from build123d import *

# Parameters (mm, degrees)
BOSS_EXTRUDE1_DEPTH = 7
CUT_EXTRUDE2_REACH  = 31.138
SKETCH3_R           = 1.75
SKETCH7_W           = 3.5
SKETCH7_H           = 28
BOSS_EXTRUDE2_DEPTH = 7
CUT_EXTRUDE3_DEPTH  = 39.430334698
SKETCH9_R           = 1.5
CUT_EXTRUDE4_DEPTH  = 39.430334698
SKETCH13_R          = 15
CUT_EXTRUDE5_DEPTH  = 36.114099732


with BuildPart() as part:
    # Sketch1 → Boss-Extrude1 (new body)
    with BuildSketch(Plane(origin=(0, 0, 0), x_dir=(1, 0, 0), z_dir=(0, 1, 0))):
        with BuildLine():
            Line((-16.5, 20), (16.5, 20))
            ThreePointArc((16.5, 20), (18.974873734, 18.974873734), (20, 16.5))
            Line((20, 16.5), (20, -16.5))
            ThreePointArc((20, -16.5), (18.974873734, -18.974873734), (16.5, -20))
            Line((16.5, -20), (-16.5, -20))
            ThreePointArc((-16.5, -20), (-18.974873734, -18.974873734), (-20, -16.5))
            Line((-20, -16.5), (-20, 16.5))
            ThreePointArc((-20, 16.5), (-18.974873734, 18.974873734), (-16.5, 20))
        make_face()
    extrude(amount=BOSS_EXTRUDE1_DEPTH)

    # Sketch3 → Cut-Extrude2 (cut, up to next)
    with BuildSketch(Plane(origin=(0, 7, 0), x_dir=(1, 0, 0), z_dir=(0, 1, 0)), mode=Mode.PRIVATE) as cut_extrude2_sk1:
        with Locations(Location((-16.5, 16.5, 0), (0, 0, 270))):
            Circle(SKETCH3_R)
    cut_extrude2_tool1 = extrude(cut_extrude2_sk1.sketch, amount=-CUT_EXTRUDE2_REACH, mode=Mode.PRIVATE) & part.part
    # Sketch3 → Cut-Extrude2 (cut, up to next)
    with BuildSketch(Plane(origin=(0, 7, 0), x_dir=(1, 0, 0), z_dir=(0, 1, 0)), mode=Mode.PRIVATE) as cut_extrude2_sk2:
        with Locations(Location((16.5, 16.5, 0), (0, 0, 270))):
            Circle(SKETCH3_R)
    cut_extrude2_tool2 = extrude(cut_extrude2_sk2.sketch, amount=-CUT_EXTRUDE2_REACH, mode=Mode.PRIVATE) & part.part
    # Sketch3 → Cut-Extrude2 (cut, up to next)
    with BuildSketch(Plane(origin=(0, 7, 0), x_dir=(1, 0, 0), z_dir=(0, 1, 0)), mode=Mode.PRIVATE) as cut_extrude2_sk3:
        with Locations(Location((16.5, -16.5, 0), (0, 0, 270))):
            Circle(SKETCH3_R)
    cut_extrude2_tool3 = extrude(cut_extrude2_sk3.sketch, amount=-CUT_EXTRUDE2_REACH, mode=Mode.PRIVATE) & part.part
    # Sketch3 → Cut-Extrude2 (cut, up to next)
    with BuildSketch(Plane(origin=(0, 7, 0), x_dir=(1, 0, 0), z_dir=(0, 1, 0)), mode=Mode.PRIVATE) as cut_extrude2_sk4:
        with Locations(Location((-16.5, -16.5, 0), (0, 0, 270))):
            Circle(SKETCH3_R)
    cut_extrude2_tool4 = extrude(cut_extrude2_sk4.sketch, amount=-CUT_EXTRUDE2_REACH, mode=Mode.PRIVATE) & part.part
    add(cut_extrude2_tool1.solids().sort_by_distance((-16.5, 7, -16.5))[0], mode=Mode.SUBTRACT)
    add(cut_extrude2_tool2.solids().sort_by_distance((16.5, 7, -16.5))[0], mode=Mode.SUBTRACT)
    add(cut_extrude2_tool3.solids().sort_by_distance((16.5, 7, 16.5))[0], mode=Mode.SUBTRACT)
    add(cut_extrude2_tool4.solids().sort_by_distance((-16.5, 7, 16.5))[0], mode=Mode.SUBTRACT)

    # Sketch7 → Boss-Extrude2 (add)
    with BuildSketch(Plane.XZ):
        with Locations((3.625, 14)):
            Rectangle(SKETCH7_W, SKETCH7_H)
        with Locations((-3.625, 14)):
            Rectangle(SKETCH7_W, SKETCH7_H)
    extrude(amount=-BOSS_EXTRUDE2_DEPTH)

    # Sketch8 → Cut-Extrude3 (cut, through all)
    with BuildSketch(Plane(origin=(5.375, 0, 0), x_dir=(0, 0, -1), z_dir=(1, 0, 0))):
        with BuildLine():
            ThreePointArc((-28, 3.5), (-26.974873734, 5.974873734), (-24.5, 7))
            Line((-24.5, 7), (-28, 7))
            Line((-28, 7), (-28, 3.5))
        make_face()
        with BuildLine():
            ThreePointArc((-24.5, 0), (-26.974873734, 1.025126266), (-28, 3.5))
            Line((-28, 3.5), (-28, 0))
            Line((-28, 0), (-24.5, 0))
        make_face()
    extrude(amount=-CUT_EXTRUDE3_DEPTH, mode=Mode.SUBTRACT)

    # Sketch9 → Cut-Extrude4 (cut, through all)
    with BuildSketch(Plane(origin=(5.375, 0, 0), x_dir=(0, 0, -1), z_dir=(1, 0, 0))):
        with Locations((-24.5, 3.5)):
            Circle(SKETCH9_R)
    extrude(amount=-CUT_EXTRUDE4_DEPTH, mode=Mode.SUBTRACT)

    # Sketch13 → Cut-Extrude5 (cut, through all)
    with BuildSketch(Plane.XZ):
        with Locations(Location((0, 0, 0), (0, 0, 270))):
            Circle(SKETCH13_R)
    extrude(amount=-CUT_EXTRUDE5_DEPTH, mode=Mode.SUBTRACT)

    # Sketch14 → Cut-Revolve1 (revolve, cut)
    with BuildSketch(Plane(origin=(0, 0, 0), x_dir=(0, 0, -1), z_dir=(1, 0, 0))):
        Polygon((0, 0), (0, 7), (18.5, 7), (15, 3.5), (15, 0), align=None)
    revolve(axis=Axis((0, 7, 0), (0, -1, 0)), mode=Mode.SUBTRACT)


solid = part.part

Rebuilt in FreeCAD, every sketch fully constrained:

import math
import FreeCAD as App
import Part
import Sketcher
Q = App.Units.Quantity


def add_polygon(sketch, points):
    """Adds a closed chain of lines whose ends are joined by coincident constraints."""
    first, n = sketch.GeometryCount, len(points)
    for a, b in zip(points, points[1:] + points[:1]):
        sketch.addGeometry(Part.LineSegment(App.Vector(*a, 0), App.Vector(*b, 0)), False)
    for i in range(n):
        sketch.addConstraint(Sketcher.Constraint("Coincident", first + i, 2, first + (i + 1) % n, 1))

doc = App.newDocument("Part")
body = doc.addObject("PartDesign::Body", "Body")

sketch1 = body.newObject("Sketcher::SketchObject", "Sketch")
sketch1.AttachmentSupport = (doc.getObject("XZ_Plane"), [""])
sketch1.MapMode = "FlatFace"
sketch1.addGeometry([
    Part.LineSegment(App.Vector(16.5, -20, 0), App.Vector(-16.5, -20, 0)),
    Part.ArcOfCircle(Part.Circle(App.Vector(-16.5, -16.5, 0), App.Vector(0, 0, 1), 3.5), math.radians(-180), math.radians(-90)),
    Part.LineSegment(App.Vector(-20, -16.5, 0), App.Vector(-20, 16.5, 0)),
    Part.ArcOfCircle(Part.Circle(App.Vector(-16.5, 16.5, 0), App.Vector(0, 0, 1), 3.5), math.radians(90), math.radians(180)),
    Part.LineSegment(App.Vector(-16.5, 20, 0), App.Vector(16.5, 20, 0)),
    Part.ArcOfCircle(Part.Circle(App.Vector(16.5, 16.5, 0), App.Vector(0, 0, 1), 3.5), math.radians(0), math.radians(90)),
    Part.LineSegment(App.Vector(20, 16.5, 0), App.Vector(20, -16.5, 0)),
    Part.ArcOfCircle(Part.Circle(App.Vector(16.5, -16.5, 0), App.Vector(0, 0, 1), 3.5), math.radians(-90), math.radians(0)),
], False)
sketch1.addConstraint([
    Sketcher.Constraint("Tangent", 0, 2, 1, 2),
    Sketcher.Constraint("Tangent", 1, 1, 2, 1),
    Sketcher.Constraint("Tangent", 2, 2, 3, 2),
    Sketcher.Constraint("Tangent", 3, 1, 4, 1),
    Sketcher.Constraint("Tangent", 4, 2, 5, 2),
    Sketcher.Constraint("Tangent", 5, 1, 6, 1),
    Sketcher.Constraint("Tangent", 6, 2, 7, 2),
    Sketcher.Constraint("Tangent", 7, 1, 0, 1),
    Sketcher.Constraint("Horizontal", 0),
    Sketcher.Constraint("Vertical", 2),
    Sketcher.Constraint("Horizontal", 4),
    Sketcher.Constraint("Vertical", 6),
    Sketcher.Constraint("Equal", 1, 3),
    Sketcher.Constraint("Equal", 3, 5),
    Sketcher.Constraint("Equal", 5, 7),
    Sketcher.Constraint("Symmetric", 1, 3, 5, 3, -1, 1),
    Sketcher.Constraint("Equal", 4, 2),
    Sketcher.Constraint("Radius", 1, Q("3.5 mm")),
    Sketcher.Constraint("DistanceX", 0, 2, 0, 1, Q("33 mm")),
])
pad1 = body.newObject("PartDesign::Pad", "Pad")
pad1.Profile = sketch1
pad1.Length = 7
pad1.Reversed = True

sketch2 = body.newObject("Sketcher::SketchObject", "Sketch001")
sketch2.AttachmentSupport = (doc.getObject("XZ_Plane"), [""])
sketch2.MapMode = "FlatFace"
sketch2.AttachmentOffset = App.Placement(App.Vector(0, 0, -7), App.Rotation())
sketch2.addGeometry(Part.Circle(App.Vector(-16.5, -16.5, 0), App.Vector(0, 0, 1), 1.8), False)
sketch2.addConstraint([
    Sketcher.Constraint("Diameter", 0, Q("3.5 mm")),
    Sketcher.Constraint("DistanceX", 0, 3, -1, 1, Q("16.5 mm")),
    Sketcher.Constraint("DistanceY", 0, 3, -1, 1, Q("16.5 mm")),
])
pocket1 = body.newObject("PartDesign::Pocket", "Pocket")
pocket1.Profile = sketch2
pocket1.Type = "UpToFirst"
pocket1.Reversed = True

sketch3 = body.newObject("Sketcher::SketchObject", "Sketch002")
sketch3.AttachmentSupport = (doc.getObject("XZ_Plane"), [""])
sketch3.MapMode = "FlatFace"
sketch3.AttachmentOffset = App.Placement(App.Vector(0, 0, -7), App.Rotation())
sketch3.addGeometry(Part.Circle(App.Vector(16.5, -16.5, 0), App.Vector(0, 0, 1), 1.8), False)
sketch3.addConstraint([
    Sketcher.Constraint("Diameter", 0, Q("3.5 mm")),
    Sketcher.Constraint("DistanceX", -1, 1, 0, 3, Q("16.5 mm")),
    Sketcher.Constraint("DistanceY", 0, 3, -1, 1, Q("16.5 mm")),
])
pocket2 = body.newObject("PartDesign::Pocket", "Pocket001")
pocket2.Profile = sketch3
pocket2.Type = "UpToFirst"
pocket2.Reversed = True

sketch4 = body.newObject("Sketcher::SketchObject", "Sketch003")
sketch4.AttachmentSupport = (doc.getObject("XZ_Plane"), [""])
sketch4.MapMode = "FlatFace"
sketch4.AttachmentOffset = App.Placement(App.Vector(0, 0, -7), App.Rotation())
sketch4.addGeometry(Part.Circle(App.Vector(16.5, 16.5, 0), App.Vector(0, 0, 1), 1.8), False)
sketch4.addConstraint([
    Sketcher.Constraint("Diameter", 0, Q("3.5 mm")),
    Sketcher.Constraint("DistanceX", -1, 1, 0, 3, Q("16.5 mm")),
    Sketcher.Constraint("DistanceY", -1, 1, 0, 3, Q("16.5 mm")),
])
pocket3 = body.newObject("PartDesign::Pocket", "Pocket002")
pocket3.Profile = sketch4
pocket3.Type = "UpToFirst"
pocket3.Reversed = True

sketch5 = body.newObject("Sketcher::SketchObject", "Sketch004")
sketch5.AttachmentSupport = (doc.getObject("XZ_Plane"), [""])
sketch5.MapMode = "FlatFace"
sketch5.AttachmentOffset = App.Placement(App.Vector(0, 0, -7), App.Rotation())
sketch5.addGeometry(Part.Circle(App.Vector(-16.5, 16.5, 0), App.Vector(0, 0, 1), 1.8), False)
sketch5.addConstraint([
    Sketcher.Constraint("Diameter", 0, Q("3.5 mm")),
    Sketcher.Constraint("DistanceX", 0, 3, -1, 1, Q("16.5 mm")),
    Sketcher.Constraint("DistanceY", -1, 1, 0, 3, Q("16.5 mm")),
])
pocket4 = body.newObject("PartDesign::Pocket", "Pocket003")
pocket4.Profile = sketch5
pocket4.Type = "UpToFirst"
pocket4.Reversed = True

sketch6 = body.newObject("Sketcher::SketchObject", "Sketch005")
sketch6.AttachmentSupport = (doc.getObject("XZ_Plane"), [""])
sketch6.MapMode = "FlatFace"
add_polygon(sketch6, [(1.9, 28), (1.9, 0), (5.4, 0), (5.4, 28)])
add_polygon(sketch6, [(-5.4, 28), (-5.4, 0), (-1.9, 0), (-1.9, 28)])
sketch6.addConstraint([
    Sketcher.Constraint("Vertical", 0),
    Sketcher.Constraint("Horizontal", 1),
    Sketcher.Constraint("Vertical", 2),
    Sketcher.Constraint("Horizontal", 3),
    Sketcher.Constraint("Vertical", 4),
    Sketcher.Constraint("Horizontal", 5),
    Sketcher.Constraint("Vertical", 6),
    Sketcher.Constraint("Horizontal", 7),
    Sketcher.Constraint("Symmetric", 1, 2, 4, 2, -1, 1),
    Sketcher.Constraint("Symmetric", 0, 2, 5, 2, -2),
    Sketcher.Constraint("Horizontal", 3, 2, 6, 2),
    Sketcher.Constraint("DistanceY", 0, 2, 0, 1, Q("28 mm")),
    Sketcher.Constraint("DistanceX", 1, 1, 1, 2, Q("3.5 mm")),
    Sketcher.Constraint("DistanceX", 4, 2, 0, 2, Q("7.25 mm")),
])
pad2 = body.newObject("PartDesign::Pad", "Pad001")
pad2.Profile = sketch6
pad2.Length = 7
pad2.Reversed = True

sketch7 = body.newObject("Sketcher::SketchObject", "Sketch006")
sketch7.AttachmentSupport = (doc.getObject("YZ_Plane"), [""])
sketch7.MapMode = "FlatFace"
sketch7.AttachmentOffset = App.Placement(App.Vector(0, 0, 5.375), App.Rotation())
sketch7.addGeometry([
    Part.ArcOfCircle(Part.Circle(App.Vector(3.5, 24.5, 0), App.Vector(0, 0, 1), 3.5), math.radians(0), math.radians(90)),
    Part.LineSegment(App.Vector(7, 24.5, 0), App.Vector(7, 28, 0)),
    Part.LineSegment(App.Vector(7, 28, 0), App.Vector(3.5, 28, 0)),
    Part.ArcOfCircle(Part.Circle(App.Vector(3.5, 24.5, 0), App.Vector(0, 0, 1), 3.5), math.radians(90), math.radians(180)),
    Part.LineSegment(App.Vector(3.5, 28, 0), App.Vector(0, 28, 0)),
    Part.LineSegment(App.Vector(0, 28, 0), App.Vector(0, 24.5, 0)),
], False)
sketch7.addConstraint([
    Sketcher.Constraint("Tangent", 0, 1, 1, 1),
    Sketcher.Constraint("Coincident", 1, 2, 2, 1),
    Sketcher.Constraint("Tangent", 2, 2, 0, 2),
    Sketcher.Constraint("Tangent", 3, 1, 4, 1),
    Sketcher.Constraint("Coincident", 4, 2, 5, 1),
    Sketcher.Constraint("Tangent", 5, 2, 3, 2),
    Sketcher.Constraint("Vertical", 1),
    Sketcher.Constraint("Horizontal", 2),
    Sketcher.Constraint("Horizontal", 4),
    Sketcher.Constraint("Vertical", 5),
    Sketcher.Constraint("Coincident", 3, 3, 0, 3),
    Sketcher.Constraint("Equal", 0, 3),
    Sketcher.Constraint("PointOnObject", 4, 2, -2),
    Sketcher.Constraint("Radius", 0, Q("3.5 mm")),
    Sketcher.Constraint("DistanceY", -1, 1, 1, 2, Q("28 mm")),
])
pocket5 = body.newObject("PartDesign::Pocket", "Pocket004")
pocket5.Profile = sketch7
pocket5.Type = "ThroughAll"

sketch8 = body.newObject("Sketcher::SketchObject", "Sketch007")
sketch8.AttachmentSupport = (doc.getObject("YZ_Plane"), [""])
sketch8.MapMode = "FlatFace"
sketch8.AttachmentOffset = App.Placement(App.Vector(0, 0, 5.375), App.Rotation())
sketch8.addGeometry(Part.Circle(App.Vector(3.5, 24.5, 0), App.Vector(0, 0, 1), 1.5), False)
sketch8.addConstraint([
    Sketcher.Constraint("Diameter", 0, Q("3 mm")),
    Sketcher.Constraint("DistanceX", -1, 1, 0, 3, Q("3.5 mm")),
    Sketcher.Constraint("DistanceY", -1, 1, 0, 3, Q("24.5 mm")),
])
pocket6 = body.newObject("PartDesign::Pocket", "Pocket005")
pocket6.Profile = sketch8
pocket6.Type = "ThroughAll"

sketch9 = body.newObject("Sketcher::SketchObject", "Sketch008")
sketch9.AttachmentSupport = (doc.getObject("XZ_Plane"), [""])
sketch9.MapMode = "FlatFace"
sketch9.addGeometry(Part.Circle(App.Vector(0, 0, 0), App.Vector(0, 0, 1), 15), False)
sketch9.addConstraint([
    Sketcher.Constraint("Coincident", 0, 3, -1, 1),
    Sketcher.Constraint("Diameter", 0, Q("30 mm")),
])
pocket7 = body.newObject("PartDesign::Pocket", "Pocket006")
pocket7.Profile = sketch9
pocket7.Type = "ThroughAll"

sketch10 = body.newObject("Sketcher::SketchObject", "Sketch009")
sketch10.AttachmentSupport = (doc.getObject("YZ_Plane"), [""])
sketch10.MapMode = "FlatFace"
add_polygon(sketch10, [(7, 0), (0, 0), (0, -15), (3.5, -15), (7, -18.5)])
sketch10.addConstraint([
    Sketcher.Constraint("Horizontal", 0),
    Sketcher.Constraint("Vertical", 1),
    Sketcher.Constraint("Horizontal", 2),
    Sketcher.Constraint("Vertical", 4),
    Sketcher.Constraint("Coincident", 0, 2, -1, 1),
    Sketcher.Constraint("DistanceX", 0, 2, 0, 1, Q("7 mm")),
    Sketcher.Constraint("DistanceY", 1, 2, 1, 1, Q("15 mm")),
    Sketcher.Constraint("Angle", 3, Q("-45 deg")),
    Sketcher.Constraint("DistanceX", 2, 1, 2, 2, Q("3.5 mm")),
])
groove = body.newObject("PartDesign::Groove", "Groove")
groove.Profile = sketch10
groove.ReferenceAxis = (sketch10, ["H_Axis"])
groove.Angle = 360

doc.recompute()
